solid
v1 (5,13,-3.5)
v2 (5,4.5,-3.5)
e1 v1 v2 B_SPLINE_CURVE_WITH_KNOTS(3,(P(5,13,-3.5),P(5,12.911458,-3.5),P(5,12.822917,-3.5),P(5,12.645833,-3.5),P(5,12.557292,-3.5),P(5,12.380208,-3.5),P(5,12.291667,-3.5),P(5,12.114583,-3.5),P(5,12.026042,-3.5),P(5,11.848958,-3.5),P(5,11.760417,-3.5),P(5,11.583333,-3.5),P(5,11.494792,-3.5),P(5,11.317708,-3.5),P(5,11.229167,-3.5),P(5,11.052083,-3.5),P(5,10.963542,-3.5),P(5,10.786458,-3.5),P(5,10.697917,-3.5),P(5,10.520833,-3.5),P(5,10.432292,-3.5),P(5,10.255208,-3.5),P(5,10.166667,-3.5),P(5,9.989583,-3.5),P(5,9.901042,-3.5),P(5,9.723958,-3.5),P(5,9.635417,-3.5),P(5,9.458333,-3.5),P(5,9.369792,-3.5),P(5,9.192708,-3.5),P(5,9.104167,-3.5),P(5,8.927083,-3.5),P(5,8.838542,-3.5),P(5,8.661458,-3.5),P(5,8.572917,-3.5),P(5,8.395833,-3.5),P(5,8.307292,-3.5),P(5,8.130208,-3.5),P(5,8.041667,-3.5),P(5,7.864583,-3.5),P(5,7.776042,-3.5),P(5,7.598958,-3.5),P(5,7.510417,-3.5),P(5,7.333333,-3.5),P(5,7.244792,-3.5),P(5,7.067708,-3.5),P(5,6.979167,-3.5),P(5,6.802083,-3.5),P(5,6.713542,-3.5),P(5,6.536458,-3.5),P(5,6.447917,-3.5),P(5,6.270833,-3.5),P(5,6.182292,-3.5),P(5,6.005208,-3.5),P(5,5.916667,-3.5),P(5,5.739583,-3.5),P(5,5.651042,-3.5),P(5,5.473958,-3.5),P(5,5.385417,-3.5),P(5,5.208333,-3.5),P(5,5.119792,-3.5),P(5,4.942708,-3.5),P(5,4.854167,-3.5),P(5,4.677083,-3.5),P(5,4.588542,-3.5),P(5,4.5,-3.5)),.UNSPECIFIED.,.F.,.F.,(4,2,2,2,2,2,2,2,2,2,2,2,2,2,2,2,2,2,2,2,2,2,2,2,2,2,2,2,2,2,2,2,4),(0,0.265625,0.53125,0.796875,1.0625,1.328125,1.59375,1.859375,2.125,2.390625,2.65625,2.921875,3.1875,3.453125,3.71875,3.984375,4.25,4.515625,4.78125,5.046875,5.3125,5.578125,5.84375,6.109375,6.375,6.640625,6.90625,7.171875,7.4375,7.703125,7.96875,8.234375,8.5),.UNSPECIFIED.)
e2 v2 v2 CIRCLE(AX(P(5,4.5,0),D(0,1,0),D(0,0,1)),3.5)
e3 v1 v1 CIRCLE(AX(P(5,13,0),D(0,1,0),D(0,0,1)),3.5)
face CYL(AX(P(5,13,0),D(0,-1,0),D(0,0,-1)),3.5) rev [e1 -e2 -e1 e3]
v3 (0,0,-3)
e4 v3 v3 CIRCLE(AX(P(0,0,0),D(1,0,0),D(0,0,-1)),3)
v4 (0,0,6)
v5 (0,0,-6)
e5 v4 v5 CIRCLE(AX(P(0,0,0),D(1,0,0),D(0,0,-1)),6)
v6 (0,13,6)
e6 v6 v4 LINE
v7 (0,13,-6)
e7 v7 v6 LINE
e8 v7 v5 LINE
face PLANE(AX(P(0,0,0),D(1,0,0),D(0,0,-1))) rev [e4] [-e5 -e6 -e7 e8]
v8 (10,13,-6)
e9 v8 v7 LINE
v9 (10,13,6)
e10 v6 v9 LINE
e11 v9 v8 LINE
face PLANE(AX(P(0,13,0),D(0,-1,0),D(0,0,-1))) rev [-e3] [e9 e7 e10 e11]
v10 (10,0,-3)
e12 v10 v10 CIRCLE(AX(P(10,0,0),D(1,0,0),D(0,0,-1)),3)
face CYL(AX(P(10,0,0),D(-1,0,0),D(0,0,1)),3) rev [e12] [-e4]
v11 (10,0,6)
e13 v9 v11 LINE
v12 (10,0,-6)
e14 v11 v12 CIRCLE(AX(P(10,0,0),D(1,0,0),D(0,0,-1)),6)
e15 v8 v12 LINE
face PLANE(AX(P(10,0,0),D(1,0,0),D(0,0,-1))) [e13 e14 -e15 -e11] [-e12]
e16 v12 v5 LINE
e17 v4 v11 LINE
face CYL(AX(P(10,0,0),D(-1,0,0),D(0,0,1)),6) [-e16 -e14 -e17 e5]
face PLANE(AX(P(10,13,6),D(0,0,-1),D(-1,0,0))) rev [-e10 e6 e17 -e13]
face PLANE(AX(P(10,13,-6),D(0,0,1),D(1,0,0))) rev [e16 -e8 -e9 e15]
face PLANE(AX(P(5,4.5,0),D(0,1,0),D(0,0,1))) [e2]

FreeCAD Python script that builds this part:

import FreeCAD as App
import Part
import Sketcher

V = App.Vector

doc = App.newDocument("Part")
params = doc.addObject("Spreadsheet::Sheet", "Params")
for row, (alias, value) in enumerate([
    ("sketch1_diameter", "12 mm"),
    ("sketch1_diameter2", "6 mm"),
    ("pad1_length", "10 mm"),
    ("sketch2_diameter", "7 mm"),
    ("sketch2_width", "10 mm"),
    ("sketch2_height", "12 mm"),
    ("pad2_length", "13 mm"),
    ("sketch3_diameter", "6 mm"),
    ("pocket1_length", "13 mm"),
    ("sketch4_diameter", "7 mm"),
    ("pocket2_length", "8.5 mm"),
], start=1):
    params.set(f"A{row}", alias)
    params.set(f"B{row}", "=" + value)
    params.setAlias(f"B{row}", alias)

body = doc.addObject("PartDesign::Body", "Body")

# Sketch on YZ plane
sketch1 = body.newObject("Sketcher::SketchObject", "Sketch")
sketch1.AttachmentSupport = (doc.getObject("YZ_Plane"), [""])
sketch1.MapMode = "FlatFace"
sketch1.addGeometry(Part.Circle(V(0, 0, 0), V(0, 0, 1), 6), False)
sketch1.addGeometry(Part.Circle(V(0, 0, 0), V(0, 0, 1), 3), False)
sketch1.addConstraint(Sketcher.Constraint("Coincident", 0, 3, -1, 1))
sketch1.addConstraint(Sketcher.Constraint("Coincident", 1, 3, -1, 1))
sketch1.addConstraint(Sketcher.Constraint("Diameter", 0, 12.0))
sketch1.addConstraint(Sketcher.Constraint("Diameter", 1, 6.0))
sketch1.setExpression("Constraints[2]", "Params.sketch1_diameter")
sketch1.setExpression("Constraints[3]", "Params.sketch1_diameter2")
pad1 = body.newObject("PartDesign::Pad", "Pad")
pad1.Profile = sketch1
pad1.setExpression("Length", "Params.pad1_length")

# Sketch on XZ plane
sketch2 = body.newObject("Sketcher::SketchObject", "Sketch001")
sketch2.AttachmentSupport = (doc.getObject("XZ_Plane"), [""])
sketch2.MapMode = "FlatFace"
sketch2.addGeometry(Part.LineSegment(V(0, -6, 0), V(0, 6, 0)), False)
sketch2.addGeometry(Part.LineSegment(V(0, 6, 0), V(10, 6, 0)), False)
sketch2.addGeometry(Part.LineSegment(V(10, 6, 0), V(10, -6, 0)), False)
sketch2.addGeometry(Part.LineSegment(V(10, -6, 0), V(0, -6, 0)), False)
sketch2.addGeometry(Part.Circle(V(5, 0, 0), V(0, 0, 1), 3.5), False)
sketch2.addConstraint(Sketcher.Constraint("Coincident", 0, 2, 1, 1))
sketch2.addConstraint(Sketcher.Constraint("Coincident", 1, 2, 2, 1))
sketch2.addConstraint(Sketcher.Constraint("Coincident", 2, 2, 3, 1))
sketch2.addConstraint(Sketcher.Constraint("Coincident", 3, 2, 0, 1))
sketch2.addConstraint(Sketcher.Constraint("Vertical", 0))
sketch2.addConstraint(Sketcher.Constraint("Horizontal", 1))
sketch2.addConstraint(Sketcher.Constraint("Vertical", 2))
sketch2.addConstraint(Sketcher.Constraint("Horizontal", 3))
sketch2.addConstraint(Sketcher.Constraint("Symmetric", 0, 2, 3, 2, -1, 1))
sketch2.addConstraint(Sketcher.Constraint("PointOnObject", 4, 3, -1))
sketch2.addConstraint(Sketcher.Constraint("Diameter", 4, 7.0))
sketch2.addConstraint(Sketcher.Constraint("DistanceX", 1, 1, 1, 2, 10.0))
sketch2.addConstraint(Sketcher.Constraint("DistanceY", 0, 1, 0, 2, 12.0))
sketch2.addConstraint(Sketcher.Constraint("DistanceX", -1, 1, 4, 3, 5.0))
sketch2.setExpression("Constraints[10]", "Params.sketch2_diameter")
sketch2.setExpression("Constraints[11]", "Params.sketch2_width")
sketch2.setExpression("Constraints[12]", "Params.sketch2_height")
pad2 = body.newObject("PartDesign::Pad", "Pad001")
pad2.Profile = sketch2
pad2.setExpression("Length", "Params.pad2_length")
pad2.Reversed = True

# Sketch on YZ plane
sketch3 = body.newObject("Sketcher::SketchObject", "Sketch002")
sketch3.AttachmentSupport = (doc.getObject("YZ_Plane"), [""])
sketch3.MapMode = "FlatFace"
sketch3.AttachmentOffset = App.Placement(V(0, 0, -3), App.Rotation())
sketch3.addGeometry(Part.Circle(V(0, 0, 0), V(0, 0, 1), 3), False)
sketch3.addConstraint(Sketcher.Constraint("Coincident", 0, 3, -1, 1))
sketch3.addConstraint(Sketcher.Constraint("Diameter", 0, 6.0))
sketch3.setExpression("Constraints[1]", "Params.sketch3_diameter")
pocket1 = body.newObject("PartDesign::Pocket", "Pocket")
pocket1.Profile = sketch3
pocket1.setExpression("Length", "Params.pocket1_length")
pocket1.Reversed = True

# Sketch on XZ plane
sketch4 = body.newObject("Sketcher::SketchObject", "Sketch003")
sketch4.AttachmentSupport = (doc.getObject("XZ_Plane"), [""])
sketch4.MapMode = "FlatFace"
sketch4.AttachmentOffset = App.Placement(V(0, 0, -4.5), App.Rotation())
sketch4.addGeometry(Part.Circle(V(5, 0, 0), V(0, 0, 1), 3.5), False)
sketch4.addConstraint(Sketcher.Constraint("PointOnObject", 0, 3, -1))
sketch4.addConstraint(Sketcher.Constraint("Diameter", 0, 7.0))
sketch4.addConstraint(Sketcher.Constraint("DistanceX", -1, 1, 0, 3, 5.0))
sketch4.setExpression("Constraints[1]", "Params.sketch4_diameter")
pocket2 = body.newObject("PartDesign::Pocket", "Pocket001")
pocket2.Profile = sketch4
pocket2.setExpression("Length", "Params.pocket2_length")

doc.recompute()
